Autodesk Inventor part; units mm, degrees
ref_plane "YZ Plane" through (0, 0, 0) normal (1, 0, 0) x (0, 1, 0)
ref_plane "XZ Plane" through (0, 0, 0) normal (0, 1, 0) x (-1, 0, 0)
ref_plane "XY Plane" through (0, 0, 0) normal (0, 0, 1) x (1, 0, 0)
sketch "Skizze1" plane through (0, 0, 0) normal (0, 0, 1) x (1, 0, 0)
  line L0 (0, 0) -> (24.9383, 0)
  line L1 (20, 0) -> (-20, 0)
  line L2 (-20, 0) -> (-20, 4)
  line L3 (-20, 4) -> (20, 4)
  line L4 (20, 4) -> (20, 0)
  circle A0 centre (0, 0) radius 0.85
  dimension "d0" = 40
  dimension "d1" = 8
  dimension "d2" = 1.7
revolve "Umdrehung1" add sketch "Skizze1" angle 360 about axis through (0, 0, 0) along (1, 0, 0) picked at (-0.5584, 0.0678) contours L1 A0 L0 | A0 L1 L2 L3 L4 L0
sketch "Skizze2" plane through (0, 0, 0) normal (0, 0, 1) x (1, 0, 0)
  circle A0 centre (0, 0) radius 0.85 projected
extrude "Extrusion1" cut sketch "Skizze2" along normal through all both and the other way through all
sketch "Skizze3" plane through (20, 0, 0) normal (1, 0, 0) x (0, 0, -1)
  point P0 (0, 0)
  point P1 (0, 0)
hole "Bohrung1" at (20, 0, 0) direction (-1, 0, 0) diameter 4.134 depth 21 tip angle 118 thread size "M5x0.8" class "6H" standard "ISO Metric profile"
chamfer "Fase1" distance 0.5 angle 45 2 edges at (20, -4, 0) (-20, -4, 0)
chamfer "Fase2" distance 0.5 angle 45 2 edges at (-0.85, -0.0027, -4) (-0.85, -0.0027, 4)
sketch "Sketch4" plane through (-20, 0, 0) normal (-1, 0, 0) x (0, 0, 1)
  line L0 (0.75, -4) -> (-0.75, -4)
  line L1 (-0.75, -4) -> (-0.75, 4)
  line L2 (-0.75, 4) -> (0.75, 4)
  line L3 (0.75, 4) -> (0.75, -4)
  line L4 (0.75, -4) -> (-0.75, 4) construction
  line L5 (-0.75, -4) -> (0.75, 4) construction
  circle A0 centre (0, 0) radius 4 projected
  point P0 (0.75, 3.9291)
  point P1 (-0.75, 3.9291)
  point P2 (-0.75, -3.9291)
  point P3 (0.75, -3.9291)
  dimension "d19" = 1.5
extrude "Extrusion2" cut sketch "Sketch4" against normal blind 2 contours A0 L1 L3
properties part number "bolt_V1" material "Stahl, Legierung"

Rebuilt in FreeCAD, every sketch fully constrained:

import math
import FreeCAD as App
import Part
import Sketcher
from FreeCAD import Vector
Q = App.Units.Quantity


def edges_at(feature, points):
    """Names of the edges that pass closest to the given points."""
    edges = feature.Shape.Edges
    near = lambda p: min(range(len(edges)), key=lambda i: edges[i].distToShape(Part.Vertex(*p))[0])
    return sorted({f"Edge{near(p) + 1}" for p in points})

doc = App.newDocument("Part")
params = doc.addObject("Spreadsheet::Sheet", "Params")
for row, (alias, value) in enumerate([
    ("sketch1_width", "40 mm"),
    ("sketch1_height", "4 mm"),
    ("revolution_angle", "360 deg"),
    ("sketch2_diameter", "1.7 mm"),
    ("hole_diameter", "4.134 mm"),
    ("hole_depth", "21 mm"),
    ("chamfer_size", "0.5 mm"),
    ("chamfer2_size", "0.5 mm"),
    ("sketch4_radius", "4 mm"),
    ("pocket2_length", "2 mm"),
], start=1):
    params.set(f"A{row}", alias)
    params.set(f"B{row}", "=" + value)
    params.setAlias(f"B{row}", alias)

body = doc.addObject("PartDesign::Body", "Body")

sketch1 = body.newObject("Sketcher::SketchObject", "Sketch")
sketch1.AttachmentSupport = (doc.getObject("XY_Plane"), [""])
sketch1.MapMode = "FlatFace"
sketch1.addGeometry([
    Part.LineSegment(Vector(20, 0, 0), Vector(20, 4, 0)),
    Part.LineSegment(Vector(20, 4, 0), Vector(-20, 4, 0)),
    Part.LineSegment(Vector(-20, 4, 0), Vector(-20, 0, 0)),
    Part.LineSegment(Vector(-20, 0, 0), Vector(20, 0, 0)),
], False)
sketch1.addConstraint([
    Sketcher.Constraint("Coincident", 0, 2, 1, 1),
    Sketcher.Constraint("Coincident", 1, 2, 2, 1),
    Sketcher.Constraint("Coincident", 2, 2, 3, 1),
    Sketcher.Constraint("Coincident", 3, 2, 0, 1),
    Sketcher.Constraint("Vertical", 0),
    Sketcher.Constraint("Horizontal", 1),
    Sketcher.Constraint("Vertical", 2),
    Sketcher.Constraint("Horizontal", 3),
    Sketcher.Constraint("Symmetric", 2, 2, 3, 2, -1, 1),
    Sketcher.Constraint("DistanceX", 1, 2, 1, 1, Q("40 mm")),
    Sketcher.Constraint("DistanceY", 0, 1, 0, 2, Q("4 mm")),
])
sketch1.setExpression("Constraints[9]", "Params.sketch1_width")
sketch1.setExpression("Constraints[10]", "Params.sketch1_height")
revolution = body.newObject("PartDesign::Revolution", "Revolution")
revolution.Profile = sketch1
revolution.ReferenceAxis = (sketch1, ["H_Axis"])
revolution.setExpression("Angle", "Params.revolution_angle")

sketch2 = body.newObject("Sketcher::SketchObject", "Sketch001")
sketch2.AttachmentSupport = (doc.getObject("XY_Plane"), [""])
sketch2.MapMode = "FlatFace"
sketch2.addGeometry(Part.Circle(Vector(0, 0, 0), Vector(0, 0, 1), 0.85), False)
sketch2.addConstraint([
    Sketcher.Constraint("Coincident", 0, 3, -1, 1),
    Sketcher.Constraint("Diameter", 0, Q("1.7 mm")),
])
sketch2.setExpression("Constraints[1]", "Params.sketch2_diameter")
pocket1 = body.newObject("PartDesign::Pocket", "Pocket")
pocket1.Profile = sketch2
pocket1.Type = "ThroughAll"
pocket1.Midplane = True

sketch3 = body.newObject("Sketcher::SketchObject", "Sketch002")
sketch3.AttachmentSupport = (doc.getObject("YZ_Plane"), [""])
sketch3.MapMode = "FlatFace"
sketch3.AttachmentOffset = App.Placement(Vector(0, 0, 20), App.Rotation())
sketch3.addGeometry(Part.Circle(Vector(0, 0, 0), Vector(0, 0, 1), 2.067), False)
sketch3.addConstraint([
    Sketcher.Constraint("Coincident", 0, 3, -1, 1),
    Sketcher.Constraint("Diameter", 0, Q("4.134 mm")),
])
doc.recompute()
hole = body.newObject("PartDesign::Hole", "Hole")
hole.Profile = sketch3
hole.ThreadType = "None"
hole.setExpression("Diameter", "Params.hole_diameter")
hole.DepthType = "Dimension"
hole.setExpression("Depth", "Params.hole_depth")
hole.DrillPoint = "Angled"
hole.DrillPointAngle = 118
doc.recompute()

chamfer = body.newObject("PartDesign::Chamfer", "Chamfer")
chamfer.Base = (hole, edges_at(hole, [(20, -4, 0), (-20, -4, 0)]))
chamfer.setExpression("Size", "Params.chamfer_size")
doc.recompute()

chamfer2 = body.newObject("PartDesign::Chamfer", "Chamfer001")
chamfer2.Base = (chamfer, edges_at(chamfer, [(-0.85, -0.003, -4), (-0.85, -0.003, 4)]))
chamfer2.setExpression("Size", "Params.chamfer2_size")

sketch4 = body.newObject("Sketcher::SketchObject", "Sketch003")
sketch4.AttachmentSupport = (doc.getObject("YZ_Plane"), [""])
sketch4.MapMode = "FlatFace"
sketch4.AttachmentOffset = App.Placement(Vector(0, 0, -20), App.Rotation())
sketch4.addGeometry([
    Part.ArcOfCircle(Part.Circle(Vector(0, 0, 0), Vector(0, 0, 1), 4), math.radians(169.193077), math.radians(190.806923)),
    Part.LineSegment(Vector(-3.929058, 0.75, 0), Vector(3.929058, 0.75, 0)),
    Part.ArcOfCircle(Part.Circle(Vector(0, 0, 0), Vector(0, 0, 1), 4), math.radians(-10.806923), math.radians(10.806923)),
    Part.LineSegment(Vector(3.929058, -0.75, 0), Vector(-3.929058, -0.75, 0)),
], False)
sketch4.addConstraint([
    Sketcher.Constraint("Coincident", 0, 1, 1, 1),
    Sketcher.Constraint("Coincident", 1, 2, 2, 2),
    Sketcher.Constraint("Coincident", 2, 1, 3, 1),
    Sketcher.Constraint("Coincident", 3, 2, 0, 2),
    Sketcher.Constraint("Horizontal", 1),
    Sketcher.Constraint("Horizontal", 3),
    Sketcher.Constraint("Coincident", 0, 3, -1, 1),
    Sketcher.Constraint("Coincident", 2, 3, -1, 1),
    Sketcher.Constraint("Equal", 0, 2),
    Sketcher.Constraint("Vertical", 1, 2, 2, 1),
    Sketcher.Constraint("Radius", 0, Q("4 mm")),
    Sketcher.Constraint("DistanceY", 2, 1, 1, 2, Q("1.5 mm")),
])
sketch4.setExpression("Constraints[10]", "Params.sketch4_radius")
pocket2 = body.newObject("PartDesign::Pocket", "Pocket001")
pocket2.Profile = sketch4
pocket2.setExpression("Length", "Params.pocket2_length")
pocket2.Reversed = True

doc.recompute()
